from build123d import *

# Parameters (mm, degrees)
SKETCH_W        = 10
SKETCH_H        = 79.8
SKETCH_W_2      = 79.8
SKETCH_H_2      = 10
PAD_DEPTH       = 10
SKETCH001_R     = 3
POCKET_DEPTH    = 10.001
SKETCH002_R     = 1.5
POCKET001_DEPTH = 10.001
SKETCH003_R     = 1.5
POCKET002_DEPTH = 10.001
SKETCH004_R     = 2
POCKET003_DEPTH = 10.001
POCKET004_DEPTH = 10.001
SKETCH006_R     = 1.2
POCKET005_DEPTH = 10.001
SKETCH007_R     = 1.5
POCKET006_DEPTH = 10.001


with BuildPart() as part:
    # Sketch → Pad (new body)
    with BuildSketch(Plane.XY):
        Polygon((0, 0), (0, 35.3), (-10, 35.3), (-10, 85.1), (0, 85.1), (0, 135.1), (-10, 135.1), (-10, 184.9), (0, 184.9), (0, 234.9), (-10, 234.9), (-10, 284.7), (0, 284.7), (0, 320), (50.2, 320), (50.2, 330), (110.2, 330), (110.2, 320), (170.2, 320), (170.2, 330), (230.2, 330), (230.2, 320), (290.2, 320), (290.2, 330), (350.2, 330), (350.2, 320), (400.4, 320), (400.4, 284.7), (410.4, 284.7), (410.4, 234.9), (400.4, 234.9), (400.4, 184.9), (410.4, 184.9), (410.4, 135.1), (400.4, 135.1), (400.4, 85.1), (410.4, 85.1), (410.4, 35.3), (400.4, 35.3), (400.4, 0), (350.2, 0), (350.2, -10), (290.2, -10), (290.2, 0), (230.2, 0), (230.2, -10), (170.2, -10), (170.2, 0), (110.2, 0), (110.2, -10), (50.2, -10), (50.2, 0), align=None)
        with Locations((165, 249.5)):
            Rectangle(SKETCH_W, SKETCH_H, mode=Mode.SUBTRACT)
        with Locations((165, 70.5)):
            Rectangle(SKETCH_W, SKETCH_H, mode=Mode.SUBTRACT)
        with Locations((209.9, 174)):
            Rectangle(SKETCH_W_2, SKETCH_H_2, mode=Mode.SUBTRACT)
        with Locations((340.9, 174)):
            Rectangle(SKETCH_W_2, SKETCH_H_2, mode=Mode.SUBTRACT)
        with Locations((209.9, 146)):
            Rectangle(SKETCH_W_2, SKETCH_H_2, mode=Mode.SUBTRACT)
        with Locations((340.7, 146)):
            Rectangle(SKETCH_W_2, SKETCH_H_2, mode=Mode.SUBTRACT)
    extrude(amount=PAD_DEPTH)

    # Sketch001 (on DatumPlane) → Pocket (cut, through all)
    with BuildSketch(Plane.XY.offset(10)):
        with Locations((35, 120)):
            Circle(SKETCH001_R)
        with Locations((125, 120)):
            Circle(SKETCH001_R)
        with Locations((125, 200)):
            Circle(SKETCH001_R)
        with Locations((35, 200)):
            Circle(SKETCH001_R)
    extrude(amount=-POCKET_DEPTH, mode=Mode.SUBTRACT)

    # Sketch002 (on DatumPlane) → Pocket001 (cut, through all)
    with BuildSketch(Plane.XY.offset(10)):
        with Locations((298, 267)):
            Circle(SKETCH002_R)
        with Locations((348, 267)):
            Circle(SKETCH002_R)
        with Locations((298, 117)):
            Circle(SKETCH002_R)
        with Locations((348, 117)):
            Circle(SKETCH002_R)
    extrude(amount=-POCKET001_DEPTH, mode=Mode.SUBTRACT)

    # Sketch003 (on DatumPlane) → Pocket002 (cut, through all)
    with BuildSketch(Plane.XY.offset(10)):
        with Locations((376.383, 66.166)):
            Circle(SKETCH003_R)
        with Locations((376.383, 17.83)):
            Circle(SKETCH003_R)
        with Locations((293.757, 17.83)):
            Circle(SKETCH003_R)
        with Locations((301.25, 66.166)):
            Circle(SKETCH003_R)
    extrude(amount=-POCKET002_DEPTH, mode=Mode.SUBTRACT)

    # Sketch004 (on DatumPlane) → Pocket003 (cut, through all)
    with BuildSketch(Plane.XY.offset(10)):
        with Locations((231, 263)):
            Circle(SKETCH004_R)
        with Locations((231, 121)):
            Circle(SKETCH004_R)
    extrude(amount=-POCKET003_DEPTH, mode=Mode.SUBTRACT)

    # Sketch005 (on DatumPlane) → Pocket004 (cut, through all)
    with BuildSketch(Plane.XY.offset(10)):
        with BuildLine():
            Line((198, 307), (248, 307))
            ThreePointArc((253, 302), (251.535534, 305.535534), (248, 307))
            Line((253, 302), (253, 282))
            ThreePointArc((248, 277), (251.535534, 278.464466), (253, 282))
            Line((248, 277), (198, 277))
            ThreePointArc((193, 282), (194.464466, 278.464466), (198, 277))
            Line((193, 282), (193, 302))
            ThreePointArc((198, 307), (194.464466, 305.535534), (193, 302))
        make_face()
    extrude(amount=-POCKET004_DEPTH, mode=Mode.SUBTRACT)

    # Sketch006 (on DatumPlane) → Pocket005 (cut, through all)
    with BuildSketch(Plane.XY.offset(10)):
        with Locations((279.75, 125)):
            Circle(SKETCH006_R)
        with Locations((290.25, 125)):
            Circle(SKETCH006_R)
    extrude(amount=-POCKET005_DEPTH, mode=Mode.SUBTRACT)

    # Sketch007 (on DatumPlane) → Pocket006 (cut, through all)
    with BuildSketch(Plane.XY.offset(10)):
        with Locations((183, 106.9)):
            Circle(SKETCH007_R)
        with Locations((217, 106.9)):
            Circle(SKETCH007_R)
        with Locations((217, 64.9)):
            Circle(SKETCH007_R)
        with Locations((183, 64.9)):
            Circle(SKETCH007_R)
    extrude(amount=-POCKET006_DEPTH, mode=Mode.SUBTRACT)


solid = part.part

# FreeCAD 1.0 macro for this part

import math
import FreeCAD as App
import Part
import Sketcher

V = App.Vector
Q = App.Units.Quantity


def add_polygon(sketch, points):
    """Adds a closed chain of lines whose ends are joined by coincident constraints."""
    first, n = sketch.GeometryCount, len(points)
    for a, b in zip(points, points[1:] + points[:1]):
        sketch.addGeometry(Part.LineSegment(App.Vector(*a, 0), App.Vector(*b, 0)), False)
    for i in range(n):
        sketch.addConstraint(Sketcher.Constraint("Coincident", first + i, 2, first + (i + 1) % n, 1))

doc = App.newDocument("Part")
body = doc.addObject("PartDesign::Body", "Body")

# Sketch on XY plane
sketch1 = body.newObject("Sketcher::SketchObject", "Sketch")
sketch1.AttachmentSupport = (doc.getObject("XY_Plane"), [""])
sketch1.MapMode = "FlatFace"
add_polygon(sketch1, [(0, 35), (0, 0), (50, 0), (50, -10), (110, -10), (110, 0), (170, 0), (170, -10), (230, -10), (230, 0), (290, 0), (290, -10), (350, -10), (350, 0), (400, 0), (400, 35), (410, 35), (410, 85), (400, 85), (400, 135), (410, 135), (410, 185), (400, 185), (400, 235), (410, 235), (410, 285), (400, 285), (400, 320), (350, 320), (350, 330), (290, 330), (290, 320), (230, 320), (230, 330), (170, 330), (170, 320), (110, 320), (110, 330), (50, 330), (50, 320), (0, 320), (0, 285), (-10, 285), (-10, 235), (0, 235), (0, 185), (-10, 185), (-10, 135), (0, 135), (0, 85), (-10, 85), (-10, 35)])  # lines 0-51
add_polygon(sketch1, [(301, 141), (301, 151), (381, 151), (381, 141)])  # lines 52-55
add_polygon(sketch1, [(160, 31), (160, 110), (170, 110), (170, 31)])  # lines 56-59
add_polygon(sketch1, [(170, 141), (170, 151), (250, 151), (250, 141)])  # lines 60-63
add_polygon(sketch1, [(301, 169), (301, 179), (381, 179), (381, 169)])  # lines 64-67
add_polygon(sketch1, [(170, 169), (170, 179), (250, 179), (250, 169)])  # lines 68-71
add_polygon(sketch1, [(160, 210), (160, 289), (170, 289), (170, 210)])  # lines 72-75
sketch1.addConstraint([
    Sketcher.Constraint("Vertical", 0),
    Sketcher.Constraint("Horizontal", 1),
    Sketcher.Constraint("Vertical", 2),
    Sketcher.Constraint("Horizontal", 3),
    Sketcher.Constraint("Vertical", 4),
    Sketcher.Constraint("Horizontal", 5),
    Sketcher.Constraint("Vertical", 6),
    Sketcher.Constraint("Horizontal", 7),
    Sketcher.Constraint("Vertical", 8),
    Sketcher.Constraint("Horizontal", 9),
    Sketcher.Constraint("Vertical", 10),
    Sketcher.Constraint("Horizontal", 11),
    Sketcher.Constraint("Vertical", 12),
    Sketcher.Constraint("Horizontal", 13),
    Sketcher.Constraint("Vertical", 14),
    Sketcher.Constraint("Horizontal", 15),
    Sketcher.Constraint("Vertical", 16),
    Sketcher.Constraint("Horizontal", 17),
    Sketcher.Constraint("Vertical", 18),
    Sketcher.Constraint("Horizontal", 19),
    Sketcher.Constraint("Vertical", 20),
    Sketcher.Constraint("Horizontal", 21),
    Sketcher.Constraint("Vertical", 22),
    Sketcher.Constraint("Horizontal", 23),
    Sketcher.Constraint("Vertical", 24),
    Sketcher.Constraint("Horizontal", 25),
    Sketcher.Constraint("Vertical", 26),
    Sketcher.Constraint("Horizontal", 27),
    Sketcher.Constraint("Vertical", 28),
    Sketcher.Constraint("Horizontal", 29),
    Sketcher.Constraint("Vertical", 30),
    Sketcher.Constraint("Horizontal", 31),
    Sketcher.Constraint("Vertical", 32),
    Sketcher.Constraint("Horizontal", 33),
    Sketcher.Constraint("Vertical", 34),
    Sketcher.Constraint("Horizontal", 35),
    Sketcher.Constraint("Vertical", 36),
    Sketcher.Constraint("Horizontal", 37),
    Sketcher.Constraint("Vertical", 38),
    Sketcher.Constraint("Horizontal", 39),
    Sketcher.Constraint("Vertical", 40),
    Sketcher.Constraint("Horizontal", 41),
    Sketcher.Constraint("Vertical", 42),
    Sketcher.Constraint("Horizontal", 43),
    Sketcher.Constraint("Vertical", 44),
    Sketcher.Constraint("Horizontal", 45),
    Sketcher.Constraint("Vertical", 46),
    Sketcher.Constraint("Horizontal", 47),
    Sketcher.Constraint("Vertical", 48),
    Sketcher.Constraint("Horizontal", 49),
    Sketcher.Constraint("Vertical", 50),
    Sketcher.Constraint("Horizontal", 51),
    Sketcher.Constraint("Vertical", 52),
    Sketcher.Constraint("Horizontal", 53),
    Sketcher.Constraint("Vertical", 54),
    Sketcher.Constraint("Horizontal", 55),
    Sketcher.Constraint("Vertical", 56),
    Sketcher.Constraint("Horizontal", 57),
    Sketcher.Constraint("Vertical", 58),
    Sketcher.Constraint("Horizontal", 59),
    Sketcher.Constraint("Vertical", 60),
    Sketcher.Constraint("Horizontal", 61),
    Sketcher.Constraint("Vertical", 62),
    Sketcher.Constraint("Horizontal", 63),
    Sketcher.Constraint("Vertical", 64),
    Sketcher.Constraint("Horizontal", 65),
    Sketcher.Constraint("Vertical", 66),
    Sketcher.Constraint("Horizontal", 67),
    Sketcher.Constraint("Vertical", 68),
    Sketcher.Constraint("Horizontal", 69),
    Sketcher.Constraint("Vertical", 70),
    Sketcher.Constraint("Horizontal", 71),
    Sketcher.Constraint("Vertical", 72),
    Sketcher.Constraint("Horizontal", 73),
    Sketcher.Constraint("Vertical", 74),
    Sketcher.Constraint("Horizontal", 75),
    Sketcher.Constraint("Coincident", 0, 2, -1, 1),
    Sketcher.Constraint("PointOnObject", 4, 2, -1),
    Sketcher.Constraint("PointOnObject", 8, 2, -1),
    Sketcher.Constraint("PointOnObject", 12, 2, -1),
    Sketcher.Constraint("PointOnObject", 39, 2, -2),
    Sketcher.Constraint("PointOnObject", 43, 2, -2),
    Sketcher.Constraint("PointOnObject", 47, 2, -2),
    Sketcher.Constraint("Horizontal", 3, 2, 6, 2),
    Sketcher.Constraint("Horizontal", 7, 2, 10, 2),
    Sketcher.Constraint("Horizontal", 27, 2, 30, 2),
    Sketcher.Constraint("Horizontal", 29, 2, 32, 2),
    Sketcher.Constraint("Horizontal", 31, 2, 34, 2),
    Sketcher.Constraint("Horizontal", 33, 2, 36, 2),
    Sketcher.Constraint("Horizontal", 35, 2, 38, 2),
    Sketcher.Constraint("Horizontal", 25, 2, 40, 2),
    Sketcher.Constraint("Horizontal", 23, 2, 42, 2),
    Sketcher.Constraint("Horizontal", 21, 2, 44, 2),
    Sketcher.Constraint("Horizontal", 19, 2, 46, 2),
    Sketcher.Constraint("Horizontal", 17, 2, 48, 2),
    Sketcher.Constraint("Horizontal", 15, 2, 50, 2),
    Sketcher.Constraint("Horizontal", 53, 2, 60, 2),
    Sketcher.Constraint("Horizontal", 55, 2, 62, 2),
    Sketcher.Constraint("Horizontal", 65, 2, 68, 2),
    Sketcher.Constraint("Horizontal", 67, 2, 70, 2),
    Sketcher.Constraint("Vertical", 14, 2, 17, 2),
    Sketcher.Constraint("Vertical", 16, 2, 19, 2),
    Sketcher.Constraint("Vertical", 18, 2, 21, 2),
    Sketcher.Constraint("Vertical", 20, 2, 23, 2),
    Sketcher.Constraint("Vertical", 22, 2, 25, 2),
    Sketcher.Constraint("Vertical", 12, 2, 27, 2),
    Sketcher.Constraint("Vertical", 10, 2, 29, 2),
    Sketcher.Constraint("Vertical", 8, 2, 31, 2),
    Sketcher.Constraint("Vertical", 6, 2, 33, 2),
    Sketcher.Constraint("Vertical", 4, 2, 35, 2),
    Sketcher.Constraint("Vertical", 2, 2, 37, 2),
    Sketcher.Constraint("Vertical", 42, 2, 45, 2),
    Sketcher.Constraint("Vertical", 46, 2, 49, 2),
    Sketcher.Constraint("Vertical", 58, 2, 60, 2),
    Sketcher.Constraint("Vertical", 63, 2, 68, 2),
    Sketcher.Constraint("Vertical", 62, 2, 69, 2),
    Sketcher.Constraint("Vertical", 59, 2, 72, 2),
    Sketcher.Constraint("Vertical", 71, 2, 73, 2),
    Sketcher.Constraint("Equal", 3, 5),
    Sketcher.Constraint("Equal", 5, 7),
    Sketcher.Constraint("Equal", 7, 9),
    Sketcher.Constraint("Equal", 9, 11),
    Sketcher.Constraint("Equal", 1, 13),
    Sketcher.Constraint("Equal", 25, 41),
    Sketcher.Constraint("Equal", 51, 57),
    Sketcher.Constraint("Equal", 55, 61),
    Sketcher.Constraint("Equal", 63, 65),
    Sketcher.Constraint("Equal", 75, 2),
    Sketcher.Constraint("Equal", 16, 20),
    Sketcher.Constraint("Equal", 18, 22),
    Sketcher.Constraint("Equal", 20, 24),
    Sketcher.Constraint("Equal", 14, 26),
    Sketcher.Constraint("Equal", 12, 28),
    Sketcher.Constraint("Equal", 38, 52),
    Sketcher.Constraint("Equal", 71, 56),
    Sketcher.Constraint("Equal", 62, 64),
    Sketcher.Constraint("Equal", 58, 72),
    Sketcher.Constraint("DistanceX", 3, 1, 3, 2, Q("60 mm")),
    Sketcher.Constraint("DistanceX", 15, 1, 15, 2, Q("10 mm")),
    Sketcher.Constraint("DistanceY", 18, 1, 18, 2, Q("50 mm")),
    Sketcher.Constraint("DistanceX", 1, 1, 1, 2, Q("50.2 mm")),
    Sketcher.Constraint("DistanceX", 53, 1, 53, 2, Q("79.8 mm")),
    Sketcher.Constraint("DistanceY", 0, 2, 0, 1, Q("35.3 mm")),
    Sketcher.Constraint("DistanceY", 16, 1, 16, 2, Q("49.8 mm")),
    Sketcher.Constraint("DistanceY", -1, 1, 52, 2, Q("151 mm")),
    Sketcher.Constraint("DistanceX", -1, 1, 56, 2, Q("160 mm")),
    Sketcher.Constraint("DistanceX", -1, 1, 64, 2, Q("301 mm")),
    Sketcher.Constraint("DistanceY", -1, 1, 64, 2, Q("179 mm")),
    Sketcher.Constraint("DistanceX", -1, 1, 52, 2, Q("300.8 mm")),
    Sketcher.Constraint("DistanceY", -1, 1, 56, 2, Q("110.4 mm")),
    Sketcher.Constraint("DistanceY", -1, 1, 72, 2, Q("289.4 mm")),
])
pad1 = body.newObject("PartDesign::Pad", "Pad")
pad1.Profile = sketch1
pad1.Length = 10

# Sketch on XY plane
sketch2 = body.newObject("Sketcher::SketchObject", "Sketch001")
sketch2.AttachmentSupport = (doc.getObject("XY_Plane"), [""])
sketch2.MapMode = "FlatFace"
sketch2.AttachmentOffset = App.Placement(V(0, 0, 10), App.Rotation())
sketch2.addGeometry([
    Part.Circle(V(35, 120, 0), V(0, 0, 1), 3),
    Part.Circle(V(125, 120, 0), V(0, 0, 1), 3),
    Part.Circle(V(125, 200, 0), V(0, 0, 1), 3),
    Part.Circle(V(35, 200, 0), V(0, 0, 1), 3),
], False)
sketch2.addConstraint([
    Sketcher.Constraint("Equal", 0, 1),
    Sketcher.Constraint("Equal", 1, 2),
    Sketcher.Constraint("Equal", 2, 3),
    Sketcher.Constraint("Horizontal", 0, 3, 1, 3),
    Sketcher.Constraint("Horizontal", 2, 3, 3, 3),
    Sketcher.Constraint("Vertical", 1, 3, 2, 3),
    Sketcher.Constraint("Vertical", 0, 3, 3, 3),
    Sketcher.Constraint("Diameter", 0, Q("6 mm")),
    Sketcher.Constraint("DistanceX", -1, 1, 0, 3, Q("35 mm")),
    Sketcher.Constraint("DistanceY", -1, 1, 0, 3, Q("120 mm")),
    Sketcher.Constraint("DistanceX", -1, 1, 1, 3, Q("125 mm")),
    Sketcher.Constraint("DistanceY", -1, 1, 2, 3, Q("200 mm")),
])
pocket1 = body.newObject("PartDesign::Pocket", "Pocket")
pocket1.Profile = sketch2
pocket1.Type = "ThroughAll"

# Sketch on XY plane
sketch3 = body.newObject("Sketcher::SketchObject", "Sketch002")
sketch3.AttachmentSupport = (doc.getObject("XY_Plane"), [""])
sketch3.MapMode = "FlatFace"
sketch3.AttachmentOffset = App.Placement(V(0, 0, 10), App.Rotation())
sketch3.addGeometry([
    Part.Circle(V(298, 267, 0), V(0, 0, 1), 1.5),
    Part.Circle(V(348, 267, 0), V(0, 0, 1), 1.5),
    Part.Circle(V(298, 117, 0), V(0, 0, 1), 1.5),
    Part.Circle(V(348, 117, 0), V(0, 0, 1), 1.5),
], False)
sketch3.addConstraint([
    Sketcher.Constraint("Equal", 0, 1),
    Sketcher.Constraint("Equal", 1, 2),
    Sketcher.Constraint("Equal", 2, 3),
    Sketcher.Constraint("Horizontal", 0, 3, 1, 3),
    Sketcher.Constraint("Horizontal", 2, 3, 3, 3),
    Sketcher.Constraint("Vertical", 0, 3, 2, 3),
    Sketcher.Constraint("Vertical", 1, 3, 3, 3),
    Sketcher.Constraint("Diameter", 0, Q("3 mm")),
    Sketcher.Constraint("DistanceX", -1, 1, 0, 3, Q("298 mm")),
    Sketcher.Constraint("DistanceY", -1, 1, 0, 3, Q("267 mm")),
    Sketcher.Constraint("DistanceX", -1, 1, 1, 3, Q("348 mm")),
    Sketcher.Constraint("DistanceY", -1, 1, 2, 3, Q("117 mm")),
])
pocket2 = body.newObject("PartDesign::Pocket", "Pocket001")
pocket2.Profile = sketch3
pocket2.Type = "ThroughAll"

# Sketch on XY plane
sketch4 = body.newObject("Sketcher::SketchObject", "Sketch003")
sketch4.AttachmentSupport = (doc.getObject("XY_Plane"), [""])
sketch4.MapMode = "FlatFace"
sketch4.AttachmentOffset = App.Placement(V(0, 0, 10), App.Rotation())
sketch4.addGeometry([
    Part.Circle(V(376.4, 66.2, 0), V(0, 0, 1), 1.5),
    Part.Circle(V(376.4, 17.8, 0), V(0, 0, 1), 1.5),
    Part.Circle(V(293.8, 17.8, 0), V(0, 0, 1), 1.5),
    Part.Circle(V(301.2, 66.2, 0), V(0, 0, 1), 1.5),
], False)
sketch4.addConstraint([
    Sketcher.Constraint("Equal", 0, 1),
    Sketcher.Constraint("Equal", 1, 2),
    Sketcher.Constraint("Equal", 2, 3),
    Sketcher.Constraint("Horizontal", 1, 3, 2, 3),
    Sketcher.Constraint("Horizontal", 0, 3, 3, 3),
    Sketcher.Constraint("Vertical", 0, 3, 1, 3),
    Sketcher.Constraint("Diameter", 0, Q("3 mm")),
    Sketcher.Constraint("DistanceY", -1, 1, 1, 3, Q("17.83 mm")),
    Sketcher.Constraint("DistanceX", -1, 1, 3, 3, Q("301.25 mm")),
    Sketcher.Constraint("DistanceX", -1, 1, 0, 3, Q("376.383 mm")),
    Sketcher.Constraint("DistanceY", -1, 1, 0, 3, Q("66.166 mm")),
    Sketcher.Constraint("DistanceX", -1, 1, 2, 3, Q("293.757 mm")),
])
pocket3 = body.newObject("PartDesign::Pocket", "Pocket002")
pocket3.Profile = sketch4
pocket3.Type = "ThroughAll"

# Sketch on XY plane
sketch5 = body.newObject("Sketcher::SketchObject", "Sketch004")
sketch5.AttachmentSupport = (doc.getObject("XY_Plane"), [""])
sketch5.MapMode = "FlatFace"
sketch5.AttachmentOffset = App.Placement(V(0, 0, 10), App.Rotation())
sketch5.addGeometry([
    Part.Circle(V(231, 263, 0), V(0, 0, 1), 2),
    Part.Circle(V(231, 121, 0), V(0, 0, 1), 2),
], False)
sketch5.addConstraint([
    Sketcher.Constraint("Equal", 0, 1),
    Sketcher.Constraint("Vertical", 0, 3, 1, 3),
    Sketcher.Constraint("Diameter", 0, Q("4 mm")),
    Sketcher.Constraint("DistanceX", -1, 1, 0, 3, Q("231 mm")),
    Sketcher.Constraint("DistanceY", -1, 1, 0, 3, Q("263 mm")),
    Sketcher.Constraint("DistanceY", -1, 1, 1, 3, Q("121 mm")),
])
pocket4 = body.newObject("PartDesign::Pocket", "Pocket003")
pocket4.Profile = sketch5
pocket4.Type = "ThroughAll"

# Sketch on XY plane
sketch6 = body.newObject("Sketcher::SketchObject", "Sketch005")
sketch6.AttachmentSupport = (doc.getObject("XY_Plane"), [""])
sketch6.MapMode = "FlatFace"
sketch6.AttachmentOffset = App.Placement(V(0, 0, 10), App.Rotation())
sketch6.addGeometry([
    Part.LineSegment(V(248, 307, 0), V(198, 307, 0)),  # 0
    Part.ArcOfCircle(Part.Circle(V(198, 302, 0), V(0, 0, 1), 5), math.radians(90), math.radians(180)),  # 1
    Part.LineSegment(V(193, 302, 0), V(193, 282, 0)),  # 2
    Part.ArcOfCircle(Part.Circle(V(198, 282, 0), V(0, 0, 1), 5), math.radians(180), math.radians(270)),  # 3
    Part.LineSegment(V(198, 277, 0), V(248, 277, 0)),  # 4
    Part.ArcOfCircle(Part.Circle(V(248, 282, 0), V(0, 0, 1), 5), math.radians(-90), math.radians(0)),  # 5
    Part.LineSegment(V(253, 282, 0), V(253, 302, 0)),  # 6
    Part.ArcOfCircle(Part.Circle(V(248, 302, 0), V(0, 0, 1), 5), math.radians(0), math.radians(90)),  # 7
], False)
sketch6.addConstraint([
    Sketcher.Constraint("Tangent", 0, 2, 1, 1),
    Sketcher.Constraint("Tangent", 1, 2, 2, 1),
    Sketcher.Constraint("Tangent", 2, 2, 3, 1),
    Sketcher.Constraint("Tangent", 3, 2, 4, 1),
    Sketcher.Constraint("Tangent", 4, 2, 5, 1),
    Sketcher.Constraint("Tangent", 5, 2, 6, 1),
    Sketcher.Constraint("Tangent", 6, 2, 7, 1),
    Sketcher.Constraint("Tangent", 7, 2, 0, 1),
    Sketcher.Constraint("Horizontal", 0),
    Sketcher.Constraint("Vertical", 2),
    Sketcher.Constraint("Horizontal", 4),
    Sketcher.Constraint("Vertical", 6),
    Sketcher.Constraint("Equal", 1, 3),
    Sketcher.Constraint("Equal", 3, 5),
    Sketcher.Constraint("Equal", 5, 7),
    Sketcher.Constraint("Radius", 1, Q("5 mm")),
    Sketcher.Constraint("DistanceX", 0, 2, 0, 1, Q("50 mm")),
    Sketcher.Constraint("DistanceY", 2, 2, 2, 1, Q("20 mm")),
    Sketcher.Constraint("DistanceX", -1, 1, 1, 3, Q("198 mm")),
    Sketcher.Constraint("DistanceY", -1, 1, 1, 3, Q("302 mm")),
])
pocket5 = body.newObject("PartDesign::Pocket", "Pocket004")
pocket5.Profile = sketch6
pocket5.Type = "ThroughAll"

# Sketch on XY plane
sketch7 = body.newObject("Sketcher::SketchObject", "Sketch006")
sketch7.AttachmentSupport = (doc.getObject("XY_Plane"), [""])
sketch7.MapMode = "FlatFace"
sketch7.AttachmentOffset = App.Placement(V(0, 0, 10), App.Rotation())
sketch7.addGeometry([
    Part.Circle(V(279.8, 125, 0), V(0, 0, 1), 1.2),
    Part.Circle(V(290.2, 125, 0), V(0, 0, 1), 1.2),
], False)
sketch7.addConstraint([
    Sketcher.Constraint("Equal", 0, 1),
    Sketcher.Constraint("Horizontal", 0, 3, 1, 3),
    Sketcher.Constraint("Diameter", 0, Q("2.4 mm")),
    Sketcher.Constraint("DistanceY", -1, 1, 0, 3, Q("125 mm")),
    Sketcher.Constraint("DistanceX", 0, 3, 1, 3, Q("10.5 mm")),
    Sketcher.Constraint("DistanceX", -1, 1, 0, 3, Q("279.75 mm")),
])
pocket6 = body.newObject("PartDesign::Pocket", "Pocket005")
pocket6.Profile = sketch7
pocket6.Type = "ThroughAll"

# Sketch on XY plane
sketch8 = body.newObject("Sketcher::SketchObject", "Sketch007")
sketch8.AttachmentSupport = (doc.getObject("XY_Plane"), [""])
sketch8.MapMode = "FlatFace"
sketch8.AttachmentOffset = App.Placement(V(0, 0, 10), App.Rotation())
sketch8.addGeometry([
    Part.Circle(V(183, 106.9, 0), V(0, 0, 1), 1.5),
    Part.Circle(V(217, 106.9, 0), V(0, 0, 1), 1.5),
    Part.Circle(V(217, 64.9, 0), V(0, 0, 1), 1.5),
    Part.Circle(V(183, 64.9, 0), V(0, 0, 1), 1.5),
], False)
sketch8.addConstraint([
    Sketcher.Constraint("Equal", 0, 1),
    Sketcher.Constraint("Equal", 1, 2),
    Sketcher.Constraint("Equal", 2, 3),
    Sketcher.Constraint("Horizontal", 0, 3, 1, 3),
    Sketcher.Constraint("Horizontal", 2, 3, 3, 3),
    Sketcher.Constraint("Vertical", 1, 3, 2, 3),
    Sketcher.Constraint("Vertical", 0, 3, 3, 3),
    Sketcher.Constraint("Diameter", 0, Q("3 mm")),
    Sketcher.Constraint("DistanceX", -1, 1, 0, 3, Q("183 mm")),
    Sketcher.Constraint("DistanceX", -1, 1, 1, 3, Q("217 mm")),
    Sketcher.Constraint("DistanceY", 2, 3, 1, 3, Q("42 mm")),
    Sketcher.Constraint("DistanceY", -1, 1, 0, 3, Q("106.9 mm")),
])
pocket7 = body.newObject("PartDesign::Pocket", "Pocket006")
pocket7.Profile = sketch8
pocket7.Type = "ThroughAll"

doc.recompute()
